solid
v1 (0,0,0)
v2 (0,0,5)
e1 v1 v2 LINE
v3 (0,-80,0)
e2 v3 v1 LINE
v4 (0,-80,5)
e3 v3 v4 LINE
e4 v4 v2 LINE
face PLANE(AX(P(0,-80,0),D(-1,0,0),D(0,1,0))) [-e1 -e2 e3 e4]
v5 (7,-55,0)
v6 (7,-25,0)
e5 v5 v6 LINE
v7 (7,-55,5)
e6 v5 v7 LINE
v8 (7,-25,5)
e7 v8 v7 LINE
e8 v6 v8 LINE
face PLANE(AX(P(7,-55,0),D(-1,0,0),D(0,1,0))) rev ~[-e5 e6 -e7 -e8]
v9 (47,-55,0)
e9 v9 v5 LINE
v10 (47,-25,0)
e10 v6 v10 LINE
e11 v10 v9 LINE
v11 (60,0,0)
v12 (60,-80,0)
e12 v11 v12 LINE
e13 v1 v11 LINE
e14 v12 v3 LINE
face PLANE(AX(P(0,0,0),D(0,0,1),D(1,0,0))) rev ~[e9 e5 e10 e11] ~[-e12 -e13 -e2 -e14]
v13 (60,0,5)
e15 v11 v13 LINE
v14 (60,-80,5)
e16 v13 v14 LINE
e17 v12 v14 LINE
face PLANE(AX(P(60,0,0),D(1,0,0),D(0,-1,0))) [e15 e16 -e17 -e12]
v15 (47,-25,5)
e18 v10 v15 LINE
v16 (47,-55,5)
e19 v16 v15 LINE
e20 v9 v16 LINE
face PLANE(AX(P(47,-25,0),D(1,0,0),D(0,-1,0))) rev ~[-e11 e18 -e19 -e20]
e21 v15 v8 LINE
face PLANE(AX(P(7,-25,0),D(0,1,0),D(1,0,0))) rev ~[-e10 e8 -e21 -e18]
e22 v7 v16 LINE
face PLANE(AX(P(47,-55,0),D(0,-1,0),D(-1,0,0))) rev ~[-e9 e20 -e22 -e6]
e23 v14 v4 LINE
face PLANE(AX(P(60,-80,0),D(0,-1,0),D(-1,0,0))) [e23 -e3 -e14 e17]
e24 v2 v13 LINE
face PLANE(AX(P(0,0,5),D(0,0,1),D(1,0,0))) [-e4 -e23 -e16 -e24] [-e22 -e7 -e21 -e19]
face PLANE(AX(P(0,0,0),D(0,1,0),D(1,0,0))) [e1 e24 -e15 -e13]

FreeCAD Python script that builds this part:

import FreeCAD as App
import Part
import Sketcher

doc = App.newDocument("Part")
body = doc.addObject("PartDesign::Body", "Body")

# Sketch on XY plane
sketch1 = body.newObject("Sketcher::SketchObject", "Sketch")
sketch1.AttachmentSupport = (doc.getObject("XY_Plane"), [""])
sketch1.MapMode = "FlatFace"
sketch1.addGeometry(Part.LineSegment(App.Vector(60, 0, 0), App.Vector(0, 0, 0)), False)
sketch1.addGeometry(Part.LineSegment(App.Vector(0, 0, 0), App.Vector(0, -80, 0)), False)
sketch1.addGeometry(Part.LineSegment(App.Vector(0, -80, 0), App.Vector(60, -80, 0)), False)
sketch1.addGeometry(Part.LineSegment(App.Vector(60, -80, 0), App.Vector(60, 0, 0)), False)
sketch1.addConstraint(Sketcher.Constraint("Coincident", 0, 2, 1, 1))
sketch1.addConstraint(Sketcher.Constraint("Coincident", 1, 2, 2, 1))
sketch1.addConstraint(Sketcher.Constraint("Coincident", 2, 2, 3, 1))
sketch1.addConstraint(Sketcher.Constraint("Coincident", 3, 2, 0, 1))
sketch1.addConstraint(Sketcher.Constraint("Horizontal", 0))
sketch1.addConstraint(Sketcher.Constraint("Vertical", 1))
sketch1.addConstraint(Sketcher.Constraint("Horizontal", 2))
sketch1.addConstraint(Sketcher.Constraint("Vertical", 3))
sketch1.addConstraint(Sketcher.Constraint("Coincident", 0, 2, -1, 1))
sketch1.addConstraint(Sketcher.Constraint("DistanceX", 0, 2, 0, 1, 60.0))
sketch1.addConstraint(Sketcher.Constraint("DistanceY", 1, 2, 1, 1, 80.0))
pad1 = body.newObject("PartDesign::Pad", "Pad")
pad1.Profile = sketch1
pad1.Length = 5

# Sketch on XY plane
sketch2 = body.newObject("Sketcher::SketchObject", "Sketch001")
sketch2.AttachmentSupport = (doc.getObject("XY_Plane"), [""])
sketch2.MapMode = "FlatFace"
sketch2.addGeometry(Part.LineSegment(App.Vector(47, -25, 0), App.Vector(7, -25, 0)), False)
sketch2.addGeometry(Part.LineSegment(App.Vector(7, -25, 0), App.Vector(7, -55, 0)), False)
sketch2.addGeometry(Part.LineSegment(App.Vector(7, -55, 0), App.Vector(47, -55, 0)), False)
sketch2.addGeometry(Part.LineSegment(App.Vector(47, -55, 0), App.Vector(47, -25, 0)), False)
sketch2.addConstraint(Sketcher.Constraint("Coincident", 0, 2, 1, 1))
sketch2.addConstraint(Sketcher.Constraint("Coincident", 1, 2, 2, 1))
sketch2.addConstraint(Sketcher.Constraint("Coincident", 2, 2, 3, 1))
sketch2.addConstraint(Sketcher.Constraint("Coincident", 3, 2, 0, 1))
sketch2.addConstraint(Sketcher.Constraint("Horizontal", 0))
sketch2.addConstraint(Sketcher.Constraint("Vertical", 1))
sketch2.addConstraint(Sketcher.Constraint("Horizontal", 2))
sketch2.addConstraint(Sketcher.Constraint("Vertical", 3))
sketch2.addConstraint(Sketcher.Constraint("DistanceX", 0, 2, 0, 1, 40.0))
sketch2.addConstraint(Sketcher.Constraint("DistanceY", 1, 2, 1, 1, 30.0))
sketch2.addConstraint(Sketcher.Constraint("DistanceX", -1, 1, 0, 2, 7.0))
sketch2.addConstraint(Sketcher.Constraint("DistanceY", 0, 2, -1, 1, 25.0))
pocket1 = body.newObject("PartDesign::Pocket", "Pocket")
pocket1.Profile = sketch2
pocket1.Length = 100
pocket1.Reversed = True

doc.recompute()
